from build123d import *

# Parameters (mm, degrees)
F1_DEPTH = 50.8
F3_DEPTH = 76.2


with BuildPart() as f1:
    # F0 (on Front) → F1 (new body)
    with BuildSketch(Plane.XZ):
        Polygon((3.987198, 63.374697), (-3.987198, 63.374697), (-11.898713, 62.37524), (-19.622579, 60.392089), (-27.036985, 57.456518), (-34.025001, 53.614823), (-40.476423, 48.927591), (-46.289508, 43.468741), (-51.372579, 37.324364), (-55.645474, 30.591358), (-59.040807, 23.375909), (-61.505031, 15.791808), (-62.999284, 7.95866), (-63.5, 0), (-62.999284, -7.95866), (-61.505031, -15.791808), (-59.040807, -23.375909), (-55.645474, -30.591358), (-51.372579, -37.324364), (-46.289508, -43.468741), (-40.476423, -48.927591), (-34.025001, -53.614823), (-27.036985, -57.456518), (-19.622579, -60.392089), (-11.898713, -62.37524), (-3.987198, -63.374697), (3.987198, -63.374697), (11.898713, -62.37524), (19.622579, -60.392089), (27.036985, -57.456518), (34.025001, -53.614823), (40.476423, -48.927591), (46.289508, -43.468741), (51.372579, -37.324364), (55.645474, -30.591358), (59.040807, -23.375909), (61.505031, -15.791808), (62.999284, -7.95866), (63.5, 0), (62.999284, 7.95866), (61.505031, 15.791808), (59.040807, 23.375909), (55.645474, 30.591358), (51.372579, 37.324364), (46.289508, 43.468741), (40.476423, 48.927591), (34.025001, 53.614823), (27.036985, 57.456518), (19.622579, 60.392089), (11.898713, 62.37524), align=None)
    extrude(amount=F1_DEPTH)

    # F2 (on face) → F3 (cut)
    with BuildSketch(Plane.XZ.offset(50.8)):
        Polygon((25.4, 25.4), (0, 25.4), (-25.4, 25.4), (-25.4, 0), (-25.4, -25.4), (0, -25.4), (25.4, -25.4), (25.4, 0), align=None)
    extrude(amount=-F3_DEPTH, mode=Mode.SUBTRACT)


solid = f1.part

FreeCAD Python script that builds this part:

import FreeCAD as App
import Part
import Sketcher

V = App.Vector
Q = App.Units.Quantity

doc = App.newDocument("Part")
params = doc.addObject("Spreadsheet::Sheet", "Params")
for row, (alias, value) in enumerate([
    ("pad1_length", "2 in"),
    ("sketch2_width", "2 in"),
    ("pocket1_length", "3 in"),
], start=1):
    params.set(f"A{row}", alias)
    params.set(f"B{row}", "=" + value)
    params.setAlias(f"B{row}", alias)

body = doc.addObject("PartDesign::Body", "Body")

# Sketch on XZ plane
sketch1 = body.newObject("Sketcher::SketchObject", "Sketch")
sketch1.AttachmentSupport = (doc.getObject("XZ_Plane"), [""])
sketch1.MapMode = "FlatFace"
sketch1.addGeometry([
    Part.LineSegment(V(4, 63, 0), V(-4, 63, 0)),  # 0
    Part.LineSegment(V(-4, 63, 0), V(-12, 62, 0)),  # 1
    Part.LineSegment(V(-12, 62, 0), V(-20, 60, 0)),  # 2
    Part.LineSegment(V(-20, 60, 0), V(-27, 57, 0)),  # 3
    Part.LineSegment(V(-27, 57, 0), V(-34, 54, 0)),  # 4
    Part.LineSegment(V(-34, 54, 0), V(-40, 49, 0)),  # 5
    Part.LineSegment(V(-40, 49, 0), V(-46, 43, 0)),  # 6
    Part.LineSegment(V(-46, 43, 0), V(-51, 37, 0)),  # 7
    Part.LineSegment(V(-51, 37, 0), V(-56, 31, 0)),  # 8
    Part.LineSegment(V(-56, 31, 0), V(-59, 23, 0)),  # 9
    Part.LineSegment(V(-59, 23, 0), V(-62, 16, 0)),  # 10
    Part.LineSegment(V(-62, 16, 0), V(-63, 8, 0)),  # 11
    Part.LineSegment(V(-63, 8, 0), V(-64, 0, 0)),  # 12
    Part.LineSegment(V(-64, 0, 0), V(-63, -8, 0)),  # 13
    Part.LineSegment(V(-63, -8, 0), V(-62, -16, 0)),  # 14
    Part.LineSegment(V(-62, -16, 0), V(-59, -23, 0)),  # 15
    Part.LineSegment(V(-59, -23, 0), V(-56, -31, 0)),  # 16
    Part.LineSegment(V(-56, -31, 0), V(-51, -37, 0)),  # 17
    Part.LineSegment(V(-51, -37, 0), V(-46, -43, 0)),  # 18
    Part.LineSegment(V(-46, -43, 0), V(-40, -49, 0)),  # 19
    Part.LineSegment(V(-40, -49, 0), V(-34, -54, 0)),  # 20
    Part.LineSegment(V(-34, -54, 0), V(-27, -57, 0)),  # 21
    Part.LineSegment(V(-27, -57, 0), V(-20, -60, 0)),  # 22
    Part.LineSegment(V(-20, -60, 0), V(-12, -62, 0)),  # 23
    Part.LineSegment(V(-12, -62, 0), V(-4, -63, 0)),  # 24
    Part.LineSegment(V(-4, -63, 0), V(4, -63, 0)),  # 25
    Part.LineSegment(V(4, -63, 0), V(12, -62, 0)),  # 26
    Part.LineSegment(V(12, -62, 0), V(20, -60, 0)),  # 27
    Part.LineSegment(V(20, -60, 0), V(27, -57, 0)),  # 28
    Part.LineSegment(V(27, -57, 0), V(34, -54, 0)),  # 29
    Part.LineSegment(V(34, -54, 0), V(40, -49, 0)),  # 30
    Part.LineSegment(V(40, -49, 0), V(46, -43, 0)),  # 31
    Part.LineSegment(V(46, -43, 0), V(51, -37, 0)),  # 32
    Part.LineSegment(V(51, -37, 0), V(56, -31, 0)),  # 33
    Part.LineSegment(V(56, -31, 0), V(59, -23, 0)),  # 34
    Part.LineSegment(V(59, -23, 0), V(62, -16, 0)),  # 35
    Part.LineSegment(V(62, -16, 0), V(63, -8, 0)),  # 36
    Part.LineSegment(V(63, -8, 0), V(64, 0, 0)),  # 37
    Part.LineSegment(V(64, 0, 0), V(63, 8, 0)),  # 38
    Part.LineSegment(V(63, 8, 0), V(62, 16, 0)),  # 39
    Part.LineSegment(V(62, 16, 0), V(59, 23, 0)),  # 40
    Part.LineSegment(V(59, 23, 0), V(56, 31, 0)),  # 41
    Part.LineSegment(V(56, 31, 0), V(51, 37, 0)),  # 42
    Part.LineSegment(V(51, 37, 0), V(46, 43, 0)),  # 43
    Part.LineSegment(V(46, 43, 0), V(40, 49, 0)),  # 44
    Part.LineSegment(V(40, 49, 0), V(34, 54, 0)),  # 45
    Part.LineSegment(V(34, 54, 0), V(27, 57, 0)),  # 46
    Part.LineSegment(V(27, 57, 0), V(20, 60, 0)),  # 47
    Part.LineSegment(V(20, 60, 0), V(12, 62, 0)),  # 48
    Part.LineSegment(V(12, 62, 0), V(4, 63, 0)),  # 49
], False)
sketch1.addConstraint([
    Sketcher.Constraint("Coincident", 0, 2, 1, 1),
    Sketcher.Constraint("Coincident", 1, 2, 2, 1),
    Sketcher.Constraint("Coincident", 2, 2, 3, 1),
    Sketcher.Constraint("Coincident", 3, 2, 4, 1),
    Sketcher.Constraint("Coincident", 4, 2, 5, 1),
    Sketcher.Constraint("Coincident", 5, 2, 6, 1),
    Sketcher.Constraint("Coincident", 6, 2, 7, 1),
    Sketcher.Constraint("Coincident", 7, 2, 8, 1),
    Sketcher.Constraint("Coincident", 8, 2, 9, 1),
    Sketcher.Constraint("Coincident", 9, 2, 10, 1),
    Sketcher.Constraint("Coincident", 10, 2, 11, 1),
    Sketcher.Constraint("Coincident", 11, 2, 12, 1),
    Sketcher.Constraint("Coincident", 12, 2, 13, 1),
    Sketcher.Constraint("Coincident", 13, 2, 14, 1),
    Sketcher.Constraint("Coincident", 14, 2, 15, 1),
    Sketcher.Constraint("Coincident", 15, 2, 16, 1),
    Sketcher.Constraint("Coincident", 16, 2, 17, 1),
    Sketcher.Constraint("Coincident", 17, 2, 18, 1),
    Sketcher.Constraint("Coincident", 18, 2, 19, 1),
    Sketcher.Constraint("Coincident", 19, 2, 20, 1),
    Sketcher.Constraint("Coincident", 20, 2, 21, 1),
    Sketcher.Constraint("Coincident", 21, 2, 22, 1),
    Sketcher.Constraint("Coincident", 22, 2, 23, 1),
    Sketcher.Constraint("Coincident", 23, 2, 24, 1),
    Sketcher.Constraint("Coincident", 24, 2, 25, 1),
    Sketcher.Constraint("Coincident", 25, 2, 26, 1),
    Sketcher.Constraint("Coincident", 26, 2, 27, 1),
    Sketcher.Constraint("Coincident", 27, 2, 28, 1),
    Sketcher.Constraint("Coincident", 28, 2, 29, 1),
    Sketcher.Constraint("Coincident", 29, 2, 30, 1),
    Sketcher.Constraint("Coincident", 30, 2, 31, 1),
    Sketcher.Constraint("Coincident", 31, 2, 32, 1),
    Sketcher.Constraint("Coincident", 32, 2, 33, 1),
    Sketcher.Constraint("Coincident", 33, 2, 34, 1),
    Sketcher.Constraint("Coincident", 34, 2, 35, 1),
    Sketcher.Constraint("Coincident", 35, 2, 36, 1),
    Sketcher.Constraint("Coincident", 36, 2, 37, 1),
    Sketcher.Constraint("Coincident", 37, 2, 38, 1),
    Sketcher.Constraint("Coincident", 38, 2, 39, 1),
    Sketcher.Constraint("Coincident", 39, 2, 40, 1),
    Sketcher.Constraint("Coincident", 40, 2, 41, 1),
    Sketcher.Constraint("Coincident", 41, 2, 42, 1),
    Sketcher.Constraint("Coincident", 42, 2, 43, 1),
    Sketcher.Constraint("Coincident", 43, 2, 44, 1),
    Sketcher.Constraint("Coincident", 44, 2, 45, 1),
    Sketcher.Constraint("Coincident", 45, 2, 46, 1),
    Sketcher.Constraint("Coincident", 46, 2, 47, 1),
    Sketcher.Constraint("Coincident", 47, 2, 48, 1),
    Sketcher.Constraint("Coincident", 48, 2, 49, 1),
    Sketcher.Constraint("Coincident", 49, 2, 0, 1),
    Sketcher.Constraint("Horizontal", 0),
    Sketcher.Constraint("Horizontal", 25),
    Sketcher.Constraint("Symmetric", 0, 2, 25, 2, -1, 1),
    Sketcher.Constraint("Symmetric", 1, 2, 26, 2, -1, 1),
    Sketcher.Constraint("Symmetric", 2, 2, 27, 2, -1, 1),
    Sketcher.Constraint("Symmetric", 3, 2, 28, 2, -1, 1),
    Sketcher.Constraint("Symmetric", 4, 2, 29, 2, -1, 1),
    Sketcher.Constraint("Symmetric", 5, 2, 30, 2, -1, 1),
    Sketcher.Constraint("Symmetric", 6, 2, 31, 2, -1, 1),
    Sketcher.Constraint("Symmetric", 7, 2, 32, 2, -1, 1),
    Sketcher.Constraint("Symmetric", 8, 2, 33, 2, -1, 1),
    Sketcher.Constraint("Symmetric", 9, 2, 34, 2, -1, 1),
    Sketcher.Constraint("Symmetric", 10, 2, 35, 2, -1, 1),
    Sketcher.Constraint("Symmetric", 11, 2, 36, 2, -1, 1),
    Sketcher.Constraint("Symmetric", 12, 2, 37, 2, -1, 1),
    Sketcher.Constraint("Symmetric", 13, 2, 38, 2, -1, 1),
    Sketcher.Constraint("Symmetric", 14, 2, 39, 2, -1, 1),
    Sketcher.Constraint("Symmetric", 15, 2, 40, 2, -1, 1),
    Sketcher.Constraint("Symmetric", 16, 2, 41, 2, -1, 1),
    Sketcher.Constraint("Symmetric", 17, 2, 42, 2, -1, 1),
    Sketcher.Constraint("Symmetric", 18, 2, 43, 2, -1, 1),
    Sketcher.Constraint("Symmetric", 19, 2, 44, 2, -1, 1),
    Sketcher.Constraint("Symmetric", 20, 2, 45, 2, -1, 1),
    Sketcher.Constraint("Symmetric", 21, 2, 46, 2, -1, 1),
    Sketcher.Constraint("Symmetric", 22, 2, 47, 2, -1, 1),
    Sketcher.Constraint("Symmetric", 23, 2, 48, 2, -1, 1),
    Sketcher.Constraint("Symmetric", 23, 2, 26, 2, -2),
    Sketcher.Constraint("Symmetric", 22, 2, 27, 2, -2),
    Sketcher.Constraint("Symmetric", 21, 2, 28, 2, -2),
    Sketcher.Constraint("Symmetric", 20, 2, 29, 2, -2),
    Sketcher.Constraint("Symmetric", 19, 2, 30, 2, -2),
    Sketcher.Constraint("Symmetric", 18, 2, 31, 2, -2),
    Sketcher.Constraint("Symmetric", 17, 2, 32, 2, -2),
    Sketcher.Constraint("Symmetric", 16, 2, 33, 2, -2),
    Sketcher.Constraint("Symmetric", 15, 2, 34, 2, -2),
    Sketcher.Constraint("Symmetric", 14, 2, 35, 2, -2),
    Sketcher.Constraint("Symmetric", 13, 2, 36, 2, -2),
    Sketcher.Constraint("PointOnObject", 12, 2, -1),
    Sketcher.Constraint("Parallel", 24, 49),
    Sketcher.Constraint("Vertical", 0, 2, 24, 2),
    Sketcher.Constraint("Equal", 1, 2),
    Sketcher.Constraint("Equal", 2, 3),
    Sketcher.Constraint("Equal", 3, 4),
    Sketcher.Constraint("Equal", 4, 5),
    Sketcher.Constraint("Equal", 5, 6),
    Sketcher.Constraint("Equal", 6, 7),
    Sketcher.Constraint("Equal", 7, 8),
    Sketcher.Constraint("Equal", 8, 9),
    Sketcher.Constraint("Equal", 9, 10),
    Sketcher.Constraint("Equal", 10, 11),
    Sketcher.Constraint("Equal", 11, 12),
    Sketcher.Constraint("Angle", 5, Q("-144.000003 deg")),
    Sketcher.Constraint("Angle", 10, Q("-108.000001 deg")),
    Sketcher.Constraint("DistanceX", 12, 2, -1, 1, Q("2.5 in")),
    Sketcher.Constraint("Angle", 1, Q("-172.799998 deg")),
    Sketcher.Constraint("Angle", 2, Q("-165.600005 deg")),
    Sketcher.Constraint("Angle", 3, Q("-158.4 deg")),
    Sketcher.Constraint("Angle", 4, Q("-151.199996 deg")),
    Sketcher.Constraint("Angle", 6, Q("-136.800001 deg")),
    Sketcher.Constraint("Angle", 7, Q("-129.600002 deg")),
    Sketcher.Constraint("Angle", 8, Q("-122.399997 deg")),
    Sketcher.Constraint("Angle", 9, Q("-115.200003 deg")),
    Sketcher.Constraint("Angle", 11, Q("-100.800001 deg")),
    Sketcher.Constraint("Angle", 12, Q("-93.599997 deg")),
    Sketcher.Constraint("DistanceX", 7, 2, 2, 2, Q("1.25 in")),
])
pad1 = body.newObject("PartDesign::Pad", "Pad")
pad1.Profile = sketch1
pad1.setExpression("Length", "Params.pad1_length")

# Sketch on XZ plane
sketch2 = body.newObject("Sketcher::SketchObject", "Sketch001")
sketch2.AttachmentSupport = (doc.getObject("XZ_Plane"), [""])
sketch2.MapMode = "FlatFace"
sketch2.AttachmentOffset = App.Placement(V(0, 0, 2 * 25.4), App.Rotation())
sketch2.addGeometry([
    Part.LineSegment(V(25, 25, 0), V(-25, 25, 0)),
    Part.LineSegment(V(-25, 25, 0), V(-25, -25, 0)),
    Part.LineSegment(V(-25, -25, 0), V(25, -25, 0)),
    Part.LineSegment(V(25, -25, 0), V(25, 25, 0)),
], False)
sketch2.addConstraint([
    Sketcher.Constraint("Coincident", 0, 2, 1, 1),
    Sketcher.Constraint("Coincident", 1, 2, 2, 1),
    Sketcher.Constraint("Coincident", 2, 2, 3, 1),
    Sketcher.Constraint("Coincident", 3, 2, 0, 1),
    Sketcher.Constraint("Horizontal", 0),
    Sketcher.Constraint("Vertical", 1),
    Sketcher.Constraint("Horizontal", 2),
    Sketcher.Constraint("Vertical", 3),
    Sketcher.Constraint("Symmetric", 0, 2, 2, 2, -1, 1),
    Sketcher.Constraint("Equal", 2, 1),
    Sketcher.Constraint("DistanceX", 0, 2, 0, 1, Q("2 in")),
])
sketch2.setExpression("Constraints[10]", "Params.sketch2_width")
pocket1 = body.newObject("PartDesign::Pocket", "Pocket")
pocket1.Profile = sketch2
pocket1.setExpression("Length", "Params.pocket1_length")

doc.recompute()
